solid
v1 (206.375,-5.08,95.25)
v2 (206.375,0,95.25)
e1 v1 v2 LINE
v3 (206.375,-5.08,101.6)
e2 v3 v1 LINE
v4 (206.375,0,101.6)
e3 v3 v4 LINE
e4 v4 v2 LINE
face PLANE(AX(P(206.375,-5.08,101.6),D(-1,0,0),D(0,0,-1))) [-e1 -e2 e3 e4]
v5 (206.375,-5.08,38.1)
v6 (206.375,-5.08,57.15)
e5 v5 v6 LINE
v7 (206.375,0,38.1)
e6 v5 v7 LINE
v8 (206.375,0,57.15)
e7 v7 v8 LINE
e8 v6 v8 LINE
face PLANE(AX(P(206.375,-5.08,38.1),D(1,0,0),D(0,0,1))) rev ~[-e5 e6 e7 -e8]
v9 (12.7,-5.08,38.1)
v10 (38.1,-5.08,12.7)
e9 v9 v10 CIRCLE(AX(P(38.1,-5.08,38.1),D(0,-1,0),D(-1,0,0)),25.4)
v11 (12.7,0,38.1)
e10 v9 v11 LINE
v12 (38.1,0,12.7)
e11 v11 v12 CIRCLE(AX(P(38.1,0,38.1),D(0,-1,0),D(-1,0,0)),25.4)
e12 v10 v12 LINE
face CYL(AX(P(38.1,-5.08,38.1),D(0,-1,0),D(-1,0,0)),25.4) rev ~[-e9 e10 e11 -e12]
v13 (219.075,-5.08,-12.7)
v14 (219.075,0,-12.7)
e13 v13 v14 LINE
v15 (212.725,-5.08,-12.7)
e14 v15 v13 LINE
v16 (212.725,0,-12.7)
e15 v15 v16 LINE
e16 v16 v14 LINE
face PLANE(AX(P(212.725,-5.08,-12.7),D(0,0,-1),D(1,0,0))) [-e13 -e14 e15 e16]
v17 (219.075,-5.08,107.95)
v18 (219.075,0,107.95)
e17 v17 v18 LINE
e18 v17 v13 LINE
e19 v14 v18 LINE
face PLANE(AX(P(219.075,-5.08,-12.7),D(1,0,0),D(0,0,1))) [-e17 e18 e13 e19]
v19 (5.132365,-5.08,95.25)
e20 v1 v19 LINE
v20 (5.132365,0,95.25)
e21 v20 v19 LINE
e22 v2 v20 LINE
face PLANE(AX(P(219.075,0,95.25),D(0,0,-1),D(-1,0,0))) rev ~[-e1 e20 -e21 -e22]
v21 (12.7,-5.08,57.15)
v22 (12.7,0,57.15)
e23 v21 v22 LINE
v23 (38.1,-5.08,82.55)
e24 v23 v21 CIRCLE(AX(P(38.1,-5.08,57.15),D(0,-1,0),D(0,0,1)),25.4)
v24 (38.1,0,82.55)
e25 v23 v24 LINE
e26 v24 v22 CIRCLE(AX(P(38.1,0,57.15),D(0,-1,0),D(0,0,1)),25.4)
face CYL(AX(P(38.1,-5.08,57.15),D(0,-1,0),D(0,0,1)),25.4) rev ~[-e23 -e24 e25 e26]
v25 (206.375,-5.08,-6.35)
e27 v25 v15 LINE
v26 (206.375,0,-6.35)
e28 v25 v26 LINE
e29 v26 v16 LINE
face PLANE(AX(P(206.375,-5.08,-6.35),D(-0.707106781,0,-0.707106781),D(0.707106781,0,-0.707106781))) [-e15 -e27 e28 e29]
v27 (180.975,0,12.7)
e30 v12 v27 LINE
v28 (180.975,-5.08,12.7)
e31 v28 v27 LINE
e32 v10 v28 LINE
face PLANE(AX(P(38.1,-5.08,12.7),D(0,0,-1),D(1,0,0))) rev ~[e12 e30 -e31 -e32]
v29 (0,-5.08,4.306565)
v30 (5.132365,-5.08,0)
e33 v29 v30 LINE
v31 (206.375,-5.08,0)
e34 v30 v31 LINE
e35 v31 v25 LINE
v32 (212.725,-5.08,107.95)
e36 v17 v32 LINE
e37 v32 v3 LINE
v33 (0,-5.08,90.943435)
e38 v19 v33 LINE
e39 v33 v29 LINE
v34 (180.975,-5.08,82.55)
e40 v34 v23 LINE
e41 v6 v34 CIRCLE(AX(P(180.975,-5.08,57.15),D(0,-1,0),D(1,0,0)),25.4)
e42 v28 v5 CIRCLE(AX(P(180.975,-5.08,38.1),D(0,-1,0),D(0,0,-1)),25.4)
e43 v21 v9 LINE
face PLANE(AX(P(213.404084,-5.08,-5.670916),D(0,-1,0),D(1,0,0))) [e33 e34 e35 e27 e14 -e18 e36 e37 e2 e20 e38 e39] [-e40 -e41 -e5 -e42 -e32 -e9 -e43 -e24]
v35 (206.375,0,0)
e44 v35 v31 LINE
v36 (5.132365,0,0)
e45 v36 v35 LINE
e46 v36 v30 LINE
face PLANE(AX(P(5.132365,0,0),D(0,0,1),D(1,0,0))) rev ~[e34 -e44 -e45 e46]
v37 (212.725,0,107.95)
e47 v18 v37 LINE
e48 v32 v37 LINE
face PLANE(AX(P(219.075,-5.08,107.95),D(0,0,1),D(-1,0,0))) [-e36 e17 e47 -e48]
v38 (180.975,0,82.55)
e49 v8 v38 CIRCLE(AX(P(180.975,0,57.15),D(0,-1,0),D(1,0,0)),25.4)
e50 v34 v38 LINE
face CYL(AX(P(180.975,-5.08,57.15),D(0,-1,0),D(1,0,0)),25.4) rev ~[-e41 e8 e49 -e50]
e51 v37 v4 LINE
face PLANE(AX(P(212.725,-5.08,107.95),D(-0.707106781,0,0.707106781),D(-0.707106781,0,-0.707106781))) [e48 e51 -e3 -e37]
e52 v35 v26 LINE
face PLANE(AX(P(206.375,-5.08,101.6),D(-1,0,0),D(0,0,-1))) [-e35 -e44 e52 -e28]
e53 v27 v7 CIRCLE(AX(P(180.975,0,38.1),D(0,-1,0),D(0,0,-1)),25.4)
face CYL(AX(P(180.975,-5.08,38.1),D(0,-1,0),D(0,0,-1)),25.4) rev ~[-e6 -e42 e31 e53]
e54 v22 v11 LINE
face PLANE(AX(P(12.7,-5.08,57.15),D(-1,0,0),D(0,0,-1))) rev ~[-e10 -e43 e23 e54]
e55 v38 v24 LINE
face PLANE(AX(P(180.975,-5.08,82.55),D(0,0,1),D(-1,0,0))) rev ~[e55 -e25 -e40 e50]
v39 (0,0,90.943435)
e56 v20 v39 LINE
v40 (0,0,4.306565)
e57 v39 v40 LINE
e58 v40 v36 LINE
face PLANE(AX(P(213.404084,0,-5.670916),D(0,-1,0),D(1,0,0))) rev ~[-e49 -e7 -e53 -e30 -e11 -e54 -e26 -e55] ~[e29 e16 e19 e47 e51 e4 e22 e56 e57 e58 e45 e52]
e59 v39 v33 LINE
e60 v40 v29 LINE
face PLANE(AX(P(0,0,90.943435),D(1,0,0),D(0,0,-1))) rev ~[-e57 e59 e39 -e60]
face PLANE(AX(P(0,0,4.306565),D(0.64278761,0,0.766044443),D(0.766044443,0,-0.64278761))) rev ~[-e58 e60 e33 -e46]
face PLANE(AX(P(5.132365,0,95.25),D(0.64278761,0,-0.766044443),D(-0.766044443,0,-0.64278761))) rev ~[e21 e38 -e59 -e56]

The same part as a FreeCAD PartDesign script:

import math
import FreeCAD as App
import Part
import Sketcher

V = App.Vector
Q = App.Units.Quantity


def add_polygon(sketch, points):
    """Adds a closed chain of lines whose ends are joined by coincident constraints."""
    first, n = sketch.GeometryCount, len(points)
    for a, b in zip(points, points[1:] + points[:1]):
        sketch.addGeometry(Part.LineSegment(App.Vector(*a, 0), App.Vector(*b, 0)), False)
    for i in range(n):
        sketch.addConstraint(Sketcher.Constraint("Coincident", first + i, 2, first + (i + 1) % n, 1))

doc = App.newDocument("Part")
body = doc.addObject("PartDesign::Body", "Body")

# Sketch on XZ plane
sketch1 = body.newObject("Sketcher::SketchObject", "Sketch")
sketch1.AttachmentSupport = (doc.getObject("XZ_Plane"), [""])
sketch1.MapMode = "FlatFace"
add_polygon(sketch1, [(0, 4), (5, 0), (219, 0), (219, 95), (5, 95), (0, 91)])  # lines 0-5
sketch1.addConstraint(Sketcher.Constraint("Horizontal", 1))
sketch1.addConstraint(Sketcher.Constraint("Vertical", 2))
sketch1.addConstraint(Sketcher.Constraint("Horizontal", 3))
sketch1.addConstraint(Sketcher.Constraint("Vertical", 5))
sketch1.addConstraint(Sketcher.Constraint("PointOnObject", 0, 2, -1))
sketch1.addConstraint(Sketcher.Constraint("PointOnObject", 4, 2, -2))
sketch1.addConstraint(Sketcher.Constraint("Vertical", 0, 2, 3, 2))
sketch1.addConstraint(Sketcher.Constraint("Equal", 0, 4))
sketch1.addConstraint(Sketcher.Constraint("Angle", 0, Q("-40 deg")))
sketch1.addConstraint(Sketcher.Constraint("DistanceY", 2, 1, 2, 2, Q("3.75 in")))
sketch1.addConstraint(Sketcher.Constraint("DistanceX", -1, 1, 1, 2, Q("8.625 in")))
sketch1.addConstraint(Sketcher.Constraint("DistanceY", 5, 2, 5, 1, Q("86.636869 mm")))
pad1 = body.newObject("PartDesign::Pad", "Pad")
pad1.Profile = sketch1
pad1.Length = Q("0.2 in")

# Sketch on XZ plane
sketch2 = body.newObject("Sketcher::SketchObject", "Sketch001")
sketch2.AttachmentSupport = (doc.getObject("XZ_Plane"), [""])
sketch2.MapMode = "FlatFace"
sketch2.AttachmentOffset = App.Placement(V(0, 0, 0.2 * 25.4), App.Rotation())
sketch2.addGeometry(Part.LineSegment(V(13, 57, 0), V(13, 38, 0)), False)
sketch2.addGeometry(Part.ArcOfCircle(Part.Circle(V(38, 38, 0), V(0, 0, 1), 25), math.radians(180), math.radians(270)), False)
sketch2.addGeometry(Part.LineSegment(V(38, 13, 0), V(181, 13, 0)), False)
sketch2.addGeometry(Part.ArcOfCircle(Part.Circle(V(181, 38, 0), V(0, 0, 1), 25), math.radians(-90), math.radians(0)), False)
sketch2.addGeometry(Part.LineSegment(V(206, 38, 0), V(206, 57, 0)), False)
sketch2.addGeometry(Part.ArcOfCircle(Part.Circle(V(181, 57, 0), V(0, 0, 1), 25), math.radians(0), math.radians(90)), False)
sketch2.addGeometry(Part.LineSegment(V(181, 83, 0), V(38, 83, 0)), False)
sketch2.addGeometry(Part.ArcOfCircle(Part.Circle(V(38, 57, 0), V(0, 0, 1), 25), math.radians(90), math.radians(180)), False)
sketch2.addConstraint(Sketcher.Constraint("Tangent", 0, 2, 1, 1))
sketch2.addConstraint(Sketcher.Constraint("Tangent", 1, 2, 2, 1))
sketch2.addConstraint(Sketcher.Constraint("Tangent", 2, 2, 3, 1))
sketch2.addConstraint(Sketcher.Constraint("Tangent", 3, 2, 4, 1))
sketch2.addConstraint(Sketcher.Constraint("Tangent", 4, 2, 5, 1))
sketch2.addConstraint(Sketcher.Constraint("Tangent", 5, 2, 6, 1))
sketch2.addConstraint(Sketcher.Constraint("Tangent", 6, 2, 7, 1))
sketch2.addConstraint(Sketcher.Constraint("Tangent", 7, 2, 0, 1))
sketch2.addConstraint(Sketcher.Constraint("Vertical", 0))
sketch2.addConstraint(Sketcher.Constraint("Horizontal", 2))
sketch2.addConstraint(Sketcher.Constraint("Vertical", 4))
sketch2.addConstraint(Sketcher.Constraint("Horizontal", 6))
sketch2.addConstraint(Sketcher.Constraint("Equal", 1, 3))
sketch2.addConstraint(Sketcher.Constraint("Equal", 3, 5))
sketch2.addConstraint(Sketcher.Constraint("Equal", 5, 7))
sketch2.addConstraint(Sketcher.Constraint("Radius", 1, Q("1 in")))
sketch2.addConstraint(Sketcher.Constraint("DistanceY", 0, 2, 0, 1, Q("0.75 in")))
sketch2.addConstraint(Sketcher.Constraint("DistanceX", -1, 1, 1, 3, Q("1.5 in")))
sketch2.addConstraint(Sketcher.Constraint("DistanceY", -1, 1, 1, 3, Q("1.5 in")))
sketch2.addConstraint(Sketcher.Constraint("DistanceX", 2, 1, 2, 2, Q("5.625 in")))
pocket1 = body.newObject("PartDesign::Pocket", "Pocket")
pocket1.Profile = sketch2
pocket1.Type = "ThroughAll"

# Sketch on XZ plane
sketch3 = body.newObject("Sketcher::SketchObject", "Sketch002")
sketch3.AttachmentSupport = (doc.getObject("XZ_Plane"), [""])
sketch3.MapMode = "FlatFace"
sketch3.AttachmentOffset = App.Placement(V(0, 0, 0.2 * 25.4), App.Rotation())
add_polygon(sketch3, [(213, -13), (219, -13), (219, 108), (213, 108), (206, 102), (206, -6)])  # lines 0-5
sketch3.addConstraint(Sketcher.Constraint("Horizontal", 0))
sketch3.addConstraint(Sketcher.Constraint("Vertical", 1))
sketch3.addConstraint(Sketcher.Constraint("Horizontal", 2))
sketch3.addConstraint(Sketcher.Constraint("Vertical", 4))
sketch3.addConstraint(Sketcher.Constraint("Perpendicular", 3, 5))
sketch3.addConstraint(Sketcher.Constraint("Vertical", 2, 2, 5, 2))
sketch3.addConstraint(Sketcher.Constraint("Equal", 3, 5))
sketch3.addConstraint(Sketcher.Constraint("DistanceY", -1, 1, 3, 2, Q("4 in")))
sketch3.addConstraint(Sketcher.Constraint("DistanceX", 0, 1, 0, 2, Q("0.25 in")))
sketch3.addConstraint(Sketcher.Constraint("DistanceY", 1, 1, 1, 2, Q("4.75 in")))
sketch3.addConstraint(Sketcher.Constraint("DistanceY", 4, 2, 4, 1, Q("4.25 in")))
sketch3.addConstraint(Sketcher.Constraint("DistanceX", -1, 1, 0, 2, Q("8.625 in")))
pad2 = body.newObject("PartDesign::Pad", "Pad001")
pad2.Profile = sketch3
pad2.Length = Q("0.2 in")
pad2.Reversed = True

doc.recompute()
